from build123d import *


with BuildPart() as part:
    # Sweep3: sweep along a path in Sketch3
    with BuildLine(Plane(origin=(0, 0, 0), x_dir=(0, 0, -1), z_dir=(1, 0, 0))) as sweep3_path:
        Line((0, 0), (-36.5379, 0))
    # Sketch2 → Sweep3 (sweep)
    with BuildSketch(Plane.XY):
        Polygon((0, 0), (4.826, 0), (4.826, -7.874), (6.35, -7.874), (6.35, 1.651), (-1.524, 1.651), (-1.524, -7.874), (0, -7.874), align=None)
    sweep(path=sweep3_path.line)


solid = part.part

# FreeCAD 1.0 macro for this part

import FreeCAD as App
import Part
import Sketcher
from FreeCAD import Vector
Q = App.Units.Quantity

doc = App.newDocument("Part")
params = doc.addObject("Spreadsheet::Sheet", "Params")
for row, (alias, value) in enumerate([
    ("sketch1_width", "0.19 in"),
    ("sketch1_width2", "0.06 in"),
    ("sketch1_height", "0.375 in"),
], start=1):
    params.set(f"A{row}", alias)
    params.set(f"B{row}", "=" + value)
    params.setAlias(f"B{row}", alias)

body = doc.addObject("PartDesign::Body", "Body")

sketch1 = body.newObject("Sketcher::SketchObject", "Sketch")
sketch1.AttachmentSupport = (doc.getObject("XY_Plane"), [""])
sketch1.MapMode = "FlatFace"
sketch1.addGeometry([
    Part.LineSegment(Vector(0, 0, 0), Vector(4.8, 0, 0)),
    Part.LineSegment(Vector(4.8, 0, 0), Vector(4.8, -7.9, 0)),
    Part.LineSegment(Vector(4.8, -7.9, 0), Vector(6.3, -7.9, 0)),
    Part.LineSegment(Vector(6.3, -7.9, 0), Vector(6.3, 1.7, 0)),
    Part.LineSegment(Vector(6.3, 1.7, 0), Vector(-1.5, 1.7, 0)),
    Part.LineSegment(Vector(-1.5, 1.7, 0), Vector(-1.5, -7.9, 0)),
    Part.LineSegment(Vector(-1.5, -7.9, 0), Vector(0, -7.9, 0)),
    Part.LineSegment(Vector(0, -7.9, 0), Vector(0, 0, 0)),
], False)
sketch1.addConstraint([
    Sketcher.Constraint("Coincident", 0, 2, 1, 1),
    Sketcher.Constraint("Coincident", 1, 2, 2, 1),
    Sketcher.Constraint("Coincident", 2, 2, 3, 1),
    Sketcher.Constraint("Coincident", 3, 2, 4, 1),
    Sketcher.Constraint("Coincident", 4, 2, 5, 1),
    Sketcher.Constraint("Coincident", 5, 2, 6, 1),
    Sketcher.Constraint("Coincident", 6, 2, 7, 1),
    Sketcher.Constraint("Coincident", 7, 2, 0, 1),
    Sketcher.Constraint("Horizontal", 0),
    Sketcher.Constraint("Vertical", 1),
    Sketcher.Constraint("Horizontal", 2),
    Sketcher.Constraint("Vertical", 3),
    Sketcher.Constraint("Horizontal", 4),
    Sketcher.Constraint("Vertical", 5),
    Sketcher.Constraint("Horizontal", 6),
    Sketcher.Constraint("Vertical", 7),
    Sketcher.Constraint("Coincident", 7, 2, -1, 1),
    Sketcher.Constraint("Horizontal", 2, 2, 5, 2),
    Sketcher.Constraint("Equal", 2, 6),
    Sketcher.Constraint("Equal", 4, 1),
    Sketcher.Constraint("DistanceX", 0, 1, 0, 2, Q("0.19 in")),
    Sketcher.Constraint("DistanceX", 2, 1, 2, 2, Q("0.06 in")),
    Sketcher.Constraint("DistanceY", 3, 1, 3, 2, Q("0.375 in")),
])
sketch1.setExpression("Constraints[20]", "Params.sketch1_width")
sketch1.setExpression("Constraints[21]", "Params.sketch1_width2")
sketch1.setExpression("Constraints[22]", "Params.sketch1_height")

sketch2 = body.newObject("Sketcher::SketchObject", "Sketch001")
sketch2.AttachmentSupport = (doc.getObject("XZ_Plane"), [""])
sketch2.MapMode = "FlatFace"
sketch2.addGeometry(Part.LineSegment(Vector(0, 0, 0), Vector(0, 37, 0)), False)
sketch2.addConstraint([
    Sketcher.Constraint("Vertical", 0),
    Sketcher.Constraint("Coincident", 0, 1, -1, 1),
    Sketcher.Constraint("DistanceY", 0, 1, 0, 2, Q("1.4385 in")),
])
doc.recompute()

additivepipe = body.newObject("PartDesign::AdditivePipe", "AdditivePipe")
additivepipe.Profile = sketch1
additivepipe.Spine = (sketch2, ["Edge1"])

doc.recompute()
